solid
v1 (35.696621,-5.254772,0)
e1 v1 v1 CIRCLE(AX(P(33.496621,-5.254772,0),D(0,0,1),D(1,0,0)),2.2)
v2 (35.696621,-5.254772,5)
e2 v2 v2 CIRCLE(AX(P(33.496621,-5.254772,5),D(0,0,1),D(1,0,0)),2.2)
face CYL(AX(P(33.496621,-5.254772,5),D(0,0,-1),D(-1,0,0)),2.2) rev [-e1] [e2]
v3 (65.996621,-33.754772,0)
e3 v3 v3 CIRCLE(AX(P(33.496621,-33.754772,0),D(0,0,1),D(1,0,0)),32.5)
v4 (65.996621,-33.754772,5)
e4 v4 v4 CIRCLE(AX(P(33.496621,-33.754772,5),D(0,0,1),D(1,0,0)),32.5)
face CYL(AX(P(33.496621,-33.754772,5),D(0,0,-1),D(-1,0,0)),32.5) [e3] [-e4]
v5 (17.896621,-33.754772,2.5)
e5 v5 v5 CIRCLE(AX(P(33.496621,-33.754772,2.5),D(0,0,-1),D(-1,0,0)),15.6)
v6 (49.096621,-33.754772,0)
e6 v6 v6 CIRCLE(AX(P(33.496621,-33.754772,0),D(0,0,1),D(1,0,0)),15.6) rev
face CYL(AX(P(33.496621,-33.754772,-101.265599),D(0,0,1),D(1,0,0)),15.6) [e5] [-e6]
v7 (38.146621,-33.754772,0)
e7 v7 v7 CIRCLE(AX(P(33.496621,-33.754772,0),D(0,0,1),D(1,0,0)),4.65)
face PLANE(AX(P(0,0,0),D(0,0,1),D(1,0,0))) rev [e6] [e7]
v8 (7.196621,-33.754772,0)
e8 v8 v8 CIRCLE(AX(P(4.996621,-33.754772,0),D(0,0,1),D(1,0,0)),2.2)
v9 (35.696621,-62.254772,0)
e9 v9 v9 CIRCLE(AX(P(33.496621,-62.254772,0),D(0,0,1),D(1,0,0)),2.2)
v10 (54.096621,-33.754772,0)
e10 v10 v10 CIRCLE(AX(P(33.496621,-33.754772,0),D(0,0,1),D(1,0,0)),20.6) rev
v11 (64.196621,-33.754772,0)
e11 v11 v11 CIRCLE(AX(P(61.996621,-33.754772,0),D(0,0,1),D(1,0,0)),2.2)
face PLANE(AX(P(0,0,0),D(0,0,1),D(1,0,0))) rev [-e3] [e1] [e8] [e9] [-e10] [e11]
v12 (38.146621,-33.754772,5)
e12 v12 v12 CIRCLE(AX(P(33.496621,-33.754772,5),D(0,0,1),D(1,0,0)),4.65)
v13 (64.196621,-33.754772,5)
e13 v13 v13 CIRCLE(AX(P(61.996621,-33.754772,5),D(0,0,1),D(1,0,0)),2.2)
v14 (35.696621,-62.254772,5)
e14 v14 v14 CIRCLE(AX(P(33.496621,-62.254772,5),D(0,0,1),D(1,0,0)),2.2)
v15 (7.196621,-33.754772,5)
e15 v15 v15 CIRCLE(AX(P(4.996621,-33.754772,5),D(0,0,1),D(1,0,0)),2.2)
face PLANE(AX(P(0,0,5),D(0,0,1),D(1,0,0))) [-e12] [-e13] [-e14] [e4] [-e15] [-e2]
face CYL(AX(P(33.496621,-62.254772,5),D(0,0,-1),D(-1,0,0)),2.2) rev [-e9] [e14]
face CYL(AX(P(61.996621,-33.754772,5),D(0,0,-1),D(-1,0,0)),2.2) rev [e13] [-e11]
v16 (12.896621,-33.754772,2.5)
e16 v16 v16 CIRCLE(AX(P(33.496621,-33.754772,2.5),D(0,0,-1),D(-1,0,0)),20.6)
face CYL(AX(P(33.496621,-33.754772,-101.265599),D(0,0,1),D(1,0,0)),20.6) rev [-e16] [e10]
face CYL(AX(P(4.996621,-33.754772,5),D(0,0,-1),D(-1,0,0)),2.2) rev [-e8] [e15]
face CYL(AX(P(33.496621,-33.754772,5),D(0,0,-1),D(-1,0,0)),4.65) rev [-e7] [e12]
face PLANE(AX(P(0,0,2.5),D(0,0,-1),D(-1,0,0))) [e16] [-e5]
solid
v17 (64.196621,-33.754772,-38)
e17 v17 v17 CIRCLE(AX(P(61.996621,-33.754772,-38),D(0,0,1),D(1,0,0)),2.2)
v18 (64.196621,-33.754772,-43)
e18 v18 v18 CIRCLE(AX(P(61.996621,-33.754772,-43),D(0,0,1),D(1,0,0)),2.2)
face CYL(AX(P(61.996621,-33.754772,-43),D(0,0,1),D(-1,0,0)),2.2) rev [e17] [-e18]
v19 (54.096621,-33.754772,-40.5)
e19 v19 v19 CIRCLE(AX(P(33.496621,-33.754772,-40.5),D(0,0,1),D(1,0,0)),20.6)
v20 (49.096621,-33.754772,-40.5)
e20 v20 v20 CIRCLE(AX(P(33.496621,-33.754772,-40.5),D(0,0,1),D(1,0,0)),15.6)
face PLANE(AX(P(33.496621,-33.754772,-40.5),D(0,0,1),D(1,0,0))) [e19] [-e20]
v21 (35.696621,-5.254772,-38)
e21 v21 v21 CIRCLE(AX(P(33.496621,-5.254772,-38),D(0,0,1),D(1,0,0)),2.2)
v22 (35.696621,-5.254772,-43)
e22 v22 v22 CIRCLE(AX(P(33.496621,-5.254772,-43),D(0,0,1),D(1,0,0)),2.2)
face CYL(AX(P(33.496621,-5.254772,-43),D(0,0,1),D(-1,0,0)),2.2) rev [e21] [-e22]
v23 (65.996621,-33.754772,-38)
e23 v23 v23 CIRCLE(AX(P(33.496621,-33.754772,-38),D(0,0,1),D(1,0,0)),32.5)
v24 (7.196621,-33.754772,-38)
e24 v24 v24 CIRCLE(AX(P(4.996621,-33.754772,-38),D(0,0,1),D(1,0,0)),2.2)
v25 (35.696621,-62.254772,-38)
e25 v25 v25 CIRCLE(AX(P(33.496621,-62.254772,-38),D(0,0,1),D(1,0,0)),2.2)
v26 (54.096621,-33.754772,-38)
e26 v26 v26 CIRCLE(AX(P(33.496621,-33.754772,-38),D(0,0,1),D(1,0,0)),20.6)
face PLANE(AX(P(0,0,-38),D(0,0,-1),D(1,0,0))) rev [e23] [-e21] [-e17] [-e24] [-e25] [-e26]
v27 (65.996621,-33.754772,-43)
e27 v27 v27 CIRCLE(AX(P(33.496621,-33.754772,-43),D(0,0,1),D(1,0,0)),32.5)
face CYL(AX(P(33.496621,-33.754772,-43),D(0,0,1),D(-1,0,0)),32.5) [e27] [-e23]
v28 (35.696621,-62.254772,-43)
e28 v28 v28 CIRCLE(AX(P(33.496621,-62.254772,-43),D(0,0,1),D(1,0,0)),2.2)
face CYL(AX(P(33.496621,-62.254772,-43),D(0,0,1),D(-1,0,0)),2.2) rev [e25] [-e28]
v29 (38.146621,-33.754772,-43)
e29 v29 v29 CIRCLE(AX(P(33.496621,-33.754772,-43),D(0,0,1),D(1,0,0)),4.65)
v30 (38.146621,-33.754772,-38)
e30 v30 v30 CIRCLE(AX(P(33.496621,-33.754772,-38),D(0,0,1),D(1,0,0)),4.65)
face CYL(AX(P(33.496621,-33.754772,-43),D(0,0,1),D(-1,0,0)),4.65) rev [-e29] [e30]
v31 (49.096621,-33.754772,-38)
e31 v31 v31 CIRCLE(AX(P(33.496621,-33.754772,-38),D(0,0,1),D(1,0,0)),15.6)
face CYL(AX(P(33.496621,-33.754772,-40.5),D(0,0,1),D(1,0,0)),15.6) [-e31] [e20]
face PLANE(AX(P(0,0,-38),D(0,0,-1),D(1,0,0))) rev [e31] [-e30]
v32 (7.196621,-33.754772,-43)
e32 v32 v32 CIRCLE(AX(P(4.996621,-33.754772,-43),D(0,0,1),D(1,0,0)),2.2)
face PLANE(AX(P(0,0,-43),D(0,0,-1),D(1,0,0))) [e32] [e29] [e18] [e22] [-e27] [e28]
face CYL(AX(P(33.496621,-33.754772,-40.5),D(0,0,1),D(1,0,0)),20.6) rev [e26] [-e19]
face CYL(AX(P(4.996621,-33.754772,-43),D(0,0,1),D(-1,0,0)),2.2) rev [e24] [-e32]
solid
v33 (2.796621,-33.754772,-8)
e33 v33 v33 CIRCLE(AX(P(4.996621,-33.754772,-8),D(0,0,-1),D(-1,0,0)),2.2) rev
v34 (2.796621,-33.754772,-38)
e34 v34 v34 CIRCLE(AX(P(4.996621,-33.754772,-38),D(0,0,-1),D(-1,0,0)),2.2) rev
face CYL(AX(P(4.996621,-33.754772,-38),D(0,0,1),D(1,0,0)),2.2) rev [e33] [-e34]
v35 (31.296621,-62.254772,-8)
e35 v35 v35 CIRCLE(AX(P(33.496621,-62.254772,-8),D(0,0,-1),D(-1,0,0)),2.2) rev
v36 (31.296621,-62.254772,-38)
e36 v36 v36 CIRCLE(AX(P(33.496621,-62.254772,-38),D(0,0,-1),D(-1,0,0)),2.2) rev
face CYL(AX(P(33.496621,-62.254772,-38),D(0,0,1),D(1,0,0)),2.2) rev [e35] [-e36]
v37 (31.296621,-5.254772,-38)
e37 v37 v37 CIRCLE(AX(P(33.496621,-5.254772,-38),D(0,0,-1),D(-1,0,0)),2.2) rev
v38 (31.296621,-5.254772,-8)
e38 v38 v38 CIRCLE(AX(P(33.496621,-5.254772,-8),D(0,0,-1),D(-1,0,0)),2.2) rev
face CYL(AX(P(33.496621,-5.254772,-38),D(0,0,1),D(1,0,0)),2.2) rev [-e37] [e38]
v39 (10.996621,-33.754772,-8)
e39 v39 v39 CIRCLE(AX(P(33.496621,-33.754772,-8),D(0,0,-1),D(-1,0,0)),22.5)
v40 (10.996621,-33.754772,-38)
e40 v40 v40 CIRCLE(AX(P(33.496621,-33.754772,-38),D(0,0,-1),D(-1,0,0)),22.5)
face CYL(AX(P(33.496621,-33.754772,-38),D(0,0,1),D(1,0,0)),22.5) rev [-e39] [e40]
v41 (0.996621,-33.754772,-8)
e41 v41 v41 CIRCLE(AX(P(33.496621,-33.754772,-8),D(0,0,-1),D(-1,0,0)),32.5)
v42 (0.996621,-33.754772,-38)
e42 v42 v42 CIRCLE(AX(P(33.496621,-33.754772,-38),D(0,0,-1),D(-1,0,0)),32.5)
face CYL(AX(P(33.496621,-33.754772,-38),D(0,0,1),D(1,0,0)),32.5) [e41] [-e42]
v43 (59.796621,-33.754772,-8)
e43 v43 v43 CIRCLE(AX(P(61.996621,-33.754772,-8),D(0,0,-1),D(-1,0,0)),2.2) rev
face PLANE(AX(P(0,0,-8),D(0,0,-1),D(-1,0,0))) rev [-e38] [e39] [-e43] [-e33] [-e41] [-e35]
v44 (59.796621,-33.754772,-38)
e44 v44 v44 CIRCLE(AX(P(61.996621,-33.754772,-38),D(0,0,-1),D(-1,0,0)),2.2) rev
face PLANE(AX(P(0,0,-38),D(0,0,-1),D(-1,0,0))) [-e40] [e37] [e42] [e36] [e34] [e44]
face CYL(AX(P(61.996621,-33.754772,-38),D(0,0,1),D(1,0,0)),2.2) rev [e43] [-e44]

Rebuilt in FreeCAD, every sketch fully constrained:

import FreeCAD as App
import Part
import Sketcher

V = App.Vector
Q = App.Units.Quantity

doc = App.newDocument("Part")
body = doc.addObject("PartDesign::Body", "Body")

# Sketch on XY plane
sketch1 = body.newObject("Sketcher::SketchObject", "Sketch")
sketch1.AttachmentSupport = (doc.getObject("XY_Plane"), [""])
sketch1.MapMode = "FlatFace"
sketch1.addGeometry([
    Part.Circle(V(33.5, -33.8, 0), V(0, 0, 1), 32.5),  # 0
    Part.Circle(V(33.5, -62.3, 0), V(0, 0, 1), 2.2),  # 1
    Part.Circle(V(5, -33.8, 0), V(0, 0, 1), 2.2),  # 2
    Part.Circle(V(33.5, -33.8, 0), V(0, 0, 1), 4.7),  # 3
    Part.Circle(V(62, -33.8, 0), V(0, 0, 1), 2.2),  # 4
    Part.Circle(V(33.5, -5.3, 0), V(0, 0, 1), 2.2),  # 5
], False)
sketch1.addConstraint([
    Sketcher.Constraint("Coincident", 3, 3, 0, 3),
    Sketcher.Constraint("Equal", 1, 2),
    Sketcher.Constraint("Equal", 2, 4),
    Sketcher.Constraint("Equal", 4, 5),
    Sketcher.Constraint("Horizontal", 0, 3, 2, 3),
    Sketcher.Constraint("Horizontal", 3, 3, 4, 3),
    Sketcher.Constraint("Vertical", 0, 3, 1, 3),
    Sketcher.Constraint("Vertical", 3, 3, 5, 3),
    Sketcher.Constraint("Diameter", 0, Q("65 mm")),
    Sketcher.Constraint("Diameter", 1, Q("4.4 mm")),
    Sketcher.Constraint("Diameter", 3, Q("9.3 mm")),
    Sketcher.Constraint("DistanceX", 2, 3, 4, 3, Q("57 mm")),
    Sketcher.Constraint("DistanceY", 1, 3, 5, 3, Q("57 mm")),
    Sketcher.Constraint("DistanceY", 1, 3, 0, 3, Q("28.5 mm")),
    Sketcher.Constraint("DistanceX", 2, 3, 0, 3, Q("28.5 mm")),
    Sketcher.Constraint("DistanceX", -1, 1, 0, 3, Q("33.496621 mm")),
    Sketcher.Constraint("DistanceY", 0, 3, -1, 1, Q("33.754772 mm")),
])
pad1 = body.newObject("PartDesign::Pad", "Pad")
pad1.Profile = sketch1
pad1.Length = 5
body2 = doc.addObject("PartDesign::Body", "Body001")

# Sketch on XY plane
sketch2 = body2.newObject("Sketcher::SketchObject", "Sketch001")
sketch2.AttachmentSupport = (doc.getObject("XY_Plane001"), [""])
sketch2.MapMode = "FlatFace"
sketch2.AttachmentOffset = App.Placement(V(0, 0, -8), App.Rotation())
sketch2.addGeometry([
    Part.Circle(V(33.5, -33.8, 0), V(0, 0, 1), 32.5),  # 0
    Part.Circle(V(33.5, -62.3, 0), V(0, 0, 1), 2.2),  # 1
    Part.Circle(V(62, -33.8, 0), V(0, 0, 1), 2.2),  # 2
    Part.Circle(V(33.5, -33.8, 0), V(0, 0, 1), 22.5),  # 3
    Part.Circle(V(5, -33.8, 0), V(0, 0, 1), 2.2),  # 4
    Part.Circle(V(33.5, -5.3, 0), V(0, 0, 1), 2.2),  # 5
], False)
sketch2.addConstraint([
    Sketcher.Constraint("Coincident", 3, 3, 0, 3),
    Sketcher.Constraint("Equal", 1, 2),
    Sketcher.Constraint("Equal", 2, 4),
    Sketcher.Constraint("Equal", 4, 5),
    Sketcher.Constraint("Horizontal", 0, 3, 2, 3),
    Sketcher.Constraint("Horizontal", 3, 3, 4, 3),
    Sketcher.Constraint("Vertical", 0, 3, 1, 3),
    Sketcher.Constraint("Vertical", 3, 3, 5, 3),
    Sketcher.Constraint("Diameter", 0, Q("65 mm")),
    Sketcher.Constraint("Diameter", 3, Q("45 mm")),
    Sketcher.Constraint("Diameter", 1, Q("4.4 mm")),
    Sketcher.Constraint("DistanceX", 4, 3, 2, 3, Q("57 mm")),
    Sketcher.Constraint("DistanceY", 1, 3, 5, 3, Q("57 mm")),
    Sketcher.Constraint("DistanceY", 1, 3, 0, 3, Q("28.5 mm")),
    Sketcher.Constraint("DistanceX", 0, 3, 2, 3, Q("28.5 mm")),
    Sketcher.Constraint("DistanceX", -1, 1, 0, 3, Q("33.496621 mm")),
    Sketcher.Constraint("DistanceY", 0, 3, -1, 1, Q("33.754772 mm")),
])
pad2 = body2.newObject("PartDesign::Pad", "Pad001")
pad2.Profile = sketch2
pad2.Length = 30
pad2.Reversed = True
body3 = doc.addObject("PartDesign::Body", "Body002")
doc.recompute()

mirroring = doc.addObject("Part::Mirroring", "Mirroring")
mirroring.Source = body
mirroring.Base = V(0, 0, -19)
mirroring.Normal = V(0, 0, -1)
body3.BaseFeature = mirroring
doc.recompute()

# Sketch on XY plane
sketch3 = body3.newObject("Sketcher::SketchObject", "Sketch002")
sketch3.AttachmentSupport = (doc.getObject("XY_Plane002"), [""])
sketch3.MapMode = "FlatFace"
sketch3.AttachmentOffset = App.Placement(V(0, 0, -40.5), App.Rotation())
sketch3.addGeometry([
    Part.Circle(V(33, -34, 0), V(0, 0, 1), 21),
    Part.Circle(V(33, -34, 0), V(0, 0, 1), 16),
], False)
sketch3.addConstraint([
    Sketcher.Constraint("Coincident", 1, 3, 0, 3),
    Sketcher.Constraint("Diameter", 0, Q("41.2 mm")),
    Sketcher.Constraint("Diameter", 1, Q("31.2 mm")),
    Sketcher.Constraint("DistanceX", -1, 1, 0, 3, Q("33.496621 mm")),
    Sketcher.Constraint("DistanceY", 0, 3, -1, 1, Q("33.754772 mm")),
])
pocket1 = body3.newObject("PartDesign::Pocket", "Pocket")
pocket1.Profile = sketch3
pocket1.Length = 2.5
pocket1.Reversed = True

# Sketch on XY plane
sketch4 = body.newObject("Sketcher::SketchObject", "Sketch003")
sketch4.AttachmentSupport = (doc.getObject("XY_Plane"), [""])
sketch4.MapMode = "FlatFace"
sketch4.addGeometry([
    Part.Circle(V(33, -34, 0), V(0, 0, 1), 21),
    Part.Circle(V(33, -34, 0), V(0, 0, 1), 16),
], False)
sketch4.addConstraint([
    Sketcher.Constraint("Coincident", 1, 3, 0, 3),
    Sketcher.Constraint("Diameter", 0, Q("41.2 mm")),
    Sketcher.Constraint("Diameter", 1, Q("31.2 mm")),
    Sketcher.Constraint("DistanceX", -1, 1, 0, 3, Q("33.496621 mm")),
    Sketcher.Constraint("DistanceY", 0, 3, -1, 1, Q("33.754772 mm")),
])
pocket2 = body.newObject("PartDesign::Pocket", "Pocket001")
pocket2.Profile = sketch4
pocket2.Type = "TwoLengths"
pocket2.Length = 8
pocket2.Length2 = 2.5
mirroring.Visibility = False

doc.recompute()
